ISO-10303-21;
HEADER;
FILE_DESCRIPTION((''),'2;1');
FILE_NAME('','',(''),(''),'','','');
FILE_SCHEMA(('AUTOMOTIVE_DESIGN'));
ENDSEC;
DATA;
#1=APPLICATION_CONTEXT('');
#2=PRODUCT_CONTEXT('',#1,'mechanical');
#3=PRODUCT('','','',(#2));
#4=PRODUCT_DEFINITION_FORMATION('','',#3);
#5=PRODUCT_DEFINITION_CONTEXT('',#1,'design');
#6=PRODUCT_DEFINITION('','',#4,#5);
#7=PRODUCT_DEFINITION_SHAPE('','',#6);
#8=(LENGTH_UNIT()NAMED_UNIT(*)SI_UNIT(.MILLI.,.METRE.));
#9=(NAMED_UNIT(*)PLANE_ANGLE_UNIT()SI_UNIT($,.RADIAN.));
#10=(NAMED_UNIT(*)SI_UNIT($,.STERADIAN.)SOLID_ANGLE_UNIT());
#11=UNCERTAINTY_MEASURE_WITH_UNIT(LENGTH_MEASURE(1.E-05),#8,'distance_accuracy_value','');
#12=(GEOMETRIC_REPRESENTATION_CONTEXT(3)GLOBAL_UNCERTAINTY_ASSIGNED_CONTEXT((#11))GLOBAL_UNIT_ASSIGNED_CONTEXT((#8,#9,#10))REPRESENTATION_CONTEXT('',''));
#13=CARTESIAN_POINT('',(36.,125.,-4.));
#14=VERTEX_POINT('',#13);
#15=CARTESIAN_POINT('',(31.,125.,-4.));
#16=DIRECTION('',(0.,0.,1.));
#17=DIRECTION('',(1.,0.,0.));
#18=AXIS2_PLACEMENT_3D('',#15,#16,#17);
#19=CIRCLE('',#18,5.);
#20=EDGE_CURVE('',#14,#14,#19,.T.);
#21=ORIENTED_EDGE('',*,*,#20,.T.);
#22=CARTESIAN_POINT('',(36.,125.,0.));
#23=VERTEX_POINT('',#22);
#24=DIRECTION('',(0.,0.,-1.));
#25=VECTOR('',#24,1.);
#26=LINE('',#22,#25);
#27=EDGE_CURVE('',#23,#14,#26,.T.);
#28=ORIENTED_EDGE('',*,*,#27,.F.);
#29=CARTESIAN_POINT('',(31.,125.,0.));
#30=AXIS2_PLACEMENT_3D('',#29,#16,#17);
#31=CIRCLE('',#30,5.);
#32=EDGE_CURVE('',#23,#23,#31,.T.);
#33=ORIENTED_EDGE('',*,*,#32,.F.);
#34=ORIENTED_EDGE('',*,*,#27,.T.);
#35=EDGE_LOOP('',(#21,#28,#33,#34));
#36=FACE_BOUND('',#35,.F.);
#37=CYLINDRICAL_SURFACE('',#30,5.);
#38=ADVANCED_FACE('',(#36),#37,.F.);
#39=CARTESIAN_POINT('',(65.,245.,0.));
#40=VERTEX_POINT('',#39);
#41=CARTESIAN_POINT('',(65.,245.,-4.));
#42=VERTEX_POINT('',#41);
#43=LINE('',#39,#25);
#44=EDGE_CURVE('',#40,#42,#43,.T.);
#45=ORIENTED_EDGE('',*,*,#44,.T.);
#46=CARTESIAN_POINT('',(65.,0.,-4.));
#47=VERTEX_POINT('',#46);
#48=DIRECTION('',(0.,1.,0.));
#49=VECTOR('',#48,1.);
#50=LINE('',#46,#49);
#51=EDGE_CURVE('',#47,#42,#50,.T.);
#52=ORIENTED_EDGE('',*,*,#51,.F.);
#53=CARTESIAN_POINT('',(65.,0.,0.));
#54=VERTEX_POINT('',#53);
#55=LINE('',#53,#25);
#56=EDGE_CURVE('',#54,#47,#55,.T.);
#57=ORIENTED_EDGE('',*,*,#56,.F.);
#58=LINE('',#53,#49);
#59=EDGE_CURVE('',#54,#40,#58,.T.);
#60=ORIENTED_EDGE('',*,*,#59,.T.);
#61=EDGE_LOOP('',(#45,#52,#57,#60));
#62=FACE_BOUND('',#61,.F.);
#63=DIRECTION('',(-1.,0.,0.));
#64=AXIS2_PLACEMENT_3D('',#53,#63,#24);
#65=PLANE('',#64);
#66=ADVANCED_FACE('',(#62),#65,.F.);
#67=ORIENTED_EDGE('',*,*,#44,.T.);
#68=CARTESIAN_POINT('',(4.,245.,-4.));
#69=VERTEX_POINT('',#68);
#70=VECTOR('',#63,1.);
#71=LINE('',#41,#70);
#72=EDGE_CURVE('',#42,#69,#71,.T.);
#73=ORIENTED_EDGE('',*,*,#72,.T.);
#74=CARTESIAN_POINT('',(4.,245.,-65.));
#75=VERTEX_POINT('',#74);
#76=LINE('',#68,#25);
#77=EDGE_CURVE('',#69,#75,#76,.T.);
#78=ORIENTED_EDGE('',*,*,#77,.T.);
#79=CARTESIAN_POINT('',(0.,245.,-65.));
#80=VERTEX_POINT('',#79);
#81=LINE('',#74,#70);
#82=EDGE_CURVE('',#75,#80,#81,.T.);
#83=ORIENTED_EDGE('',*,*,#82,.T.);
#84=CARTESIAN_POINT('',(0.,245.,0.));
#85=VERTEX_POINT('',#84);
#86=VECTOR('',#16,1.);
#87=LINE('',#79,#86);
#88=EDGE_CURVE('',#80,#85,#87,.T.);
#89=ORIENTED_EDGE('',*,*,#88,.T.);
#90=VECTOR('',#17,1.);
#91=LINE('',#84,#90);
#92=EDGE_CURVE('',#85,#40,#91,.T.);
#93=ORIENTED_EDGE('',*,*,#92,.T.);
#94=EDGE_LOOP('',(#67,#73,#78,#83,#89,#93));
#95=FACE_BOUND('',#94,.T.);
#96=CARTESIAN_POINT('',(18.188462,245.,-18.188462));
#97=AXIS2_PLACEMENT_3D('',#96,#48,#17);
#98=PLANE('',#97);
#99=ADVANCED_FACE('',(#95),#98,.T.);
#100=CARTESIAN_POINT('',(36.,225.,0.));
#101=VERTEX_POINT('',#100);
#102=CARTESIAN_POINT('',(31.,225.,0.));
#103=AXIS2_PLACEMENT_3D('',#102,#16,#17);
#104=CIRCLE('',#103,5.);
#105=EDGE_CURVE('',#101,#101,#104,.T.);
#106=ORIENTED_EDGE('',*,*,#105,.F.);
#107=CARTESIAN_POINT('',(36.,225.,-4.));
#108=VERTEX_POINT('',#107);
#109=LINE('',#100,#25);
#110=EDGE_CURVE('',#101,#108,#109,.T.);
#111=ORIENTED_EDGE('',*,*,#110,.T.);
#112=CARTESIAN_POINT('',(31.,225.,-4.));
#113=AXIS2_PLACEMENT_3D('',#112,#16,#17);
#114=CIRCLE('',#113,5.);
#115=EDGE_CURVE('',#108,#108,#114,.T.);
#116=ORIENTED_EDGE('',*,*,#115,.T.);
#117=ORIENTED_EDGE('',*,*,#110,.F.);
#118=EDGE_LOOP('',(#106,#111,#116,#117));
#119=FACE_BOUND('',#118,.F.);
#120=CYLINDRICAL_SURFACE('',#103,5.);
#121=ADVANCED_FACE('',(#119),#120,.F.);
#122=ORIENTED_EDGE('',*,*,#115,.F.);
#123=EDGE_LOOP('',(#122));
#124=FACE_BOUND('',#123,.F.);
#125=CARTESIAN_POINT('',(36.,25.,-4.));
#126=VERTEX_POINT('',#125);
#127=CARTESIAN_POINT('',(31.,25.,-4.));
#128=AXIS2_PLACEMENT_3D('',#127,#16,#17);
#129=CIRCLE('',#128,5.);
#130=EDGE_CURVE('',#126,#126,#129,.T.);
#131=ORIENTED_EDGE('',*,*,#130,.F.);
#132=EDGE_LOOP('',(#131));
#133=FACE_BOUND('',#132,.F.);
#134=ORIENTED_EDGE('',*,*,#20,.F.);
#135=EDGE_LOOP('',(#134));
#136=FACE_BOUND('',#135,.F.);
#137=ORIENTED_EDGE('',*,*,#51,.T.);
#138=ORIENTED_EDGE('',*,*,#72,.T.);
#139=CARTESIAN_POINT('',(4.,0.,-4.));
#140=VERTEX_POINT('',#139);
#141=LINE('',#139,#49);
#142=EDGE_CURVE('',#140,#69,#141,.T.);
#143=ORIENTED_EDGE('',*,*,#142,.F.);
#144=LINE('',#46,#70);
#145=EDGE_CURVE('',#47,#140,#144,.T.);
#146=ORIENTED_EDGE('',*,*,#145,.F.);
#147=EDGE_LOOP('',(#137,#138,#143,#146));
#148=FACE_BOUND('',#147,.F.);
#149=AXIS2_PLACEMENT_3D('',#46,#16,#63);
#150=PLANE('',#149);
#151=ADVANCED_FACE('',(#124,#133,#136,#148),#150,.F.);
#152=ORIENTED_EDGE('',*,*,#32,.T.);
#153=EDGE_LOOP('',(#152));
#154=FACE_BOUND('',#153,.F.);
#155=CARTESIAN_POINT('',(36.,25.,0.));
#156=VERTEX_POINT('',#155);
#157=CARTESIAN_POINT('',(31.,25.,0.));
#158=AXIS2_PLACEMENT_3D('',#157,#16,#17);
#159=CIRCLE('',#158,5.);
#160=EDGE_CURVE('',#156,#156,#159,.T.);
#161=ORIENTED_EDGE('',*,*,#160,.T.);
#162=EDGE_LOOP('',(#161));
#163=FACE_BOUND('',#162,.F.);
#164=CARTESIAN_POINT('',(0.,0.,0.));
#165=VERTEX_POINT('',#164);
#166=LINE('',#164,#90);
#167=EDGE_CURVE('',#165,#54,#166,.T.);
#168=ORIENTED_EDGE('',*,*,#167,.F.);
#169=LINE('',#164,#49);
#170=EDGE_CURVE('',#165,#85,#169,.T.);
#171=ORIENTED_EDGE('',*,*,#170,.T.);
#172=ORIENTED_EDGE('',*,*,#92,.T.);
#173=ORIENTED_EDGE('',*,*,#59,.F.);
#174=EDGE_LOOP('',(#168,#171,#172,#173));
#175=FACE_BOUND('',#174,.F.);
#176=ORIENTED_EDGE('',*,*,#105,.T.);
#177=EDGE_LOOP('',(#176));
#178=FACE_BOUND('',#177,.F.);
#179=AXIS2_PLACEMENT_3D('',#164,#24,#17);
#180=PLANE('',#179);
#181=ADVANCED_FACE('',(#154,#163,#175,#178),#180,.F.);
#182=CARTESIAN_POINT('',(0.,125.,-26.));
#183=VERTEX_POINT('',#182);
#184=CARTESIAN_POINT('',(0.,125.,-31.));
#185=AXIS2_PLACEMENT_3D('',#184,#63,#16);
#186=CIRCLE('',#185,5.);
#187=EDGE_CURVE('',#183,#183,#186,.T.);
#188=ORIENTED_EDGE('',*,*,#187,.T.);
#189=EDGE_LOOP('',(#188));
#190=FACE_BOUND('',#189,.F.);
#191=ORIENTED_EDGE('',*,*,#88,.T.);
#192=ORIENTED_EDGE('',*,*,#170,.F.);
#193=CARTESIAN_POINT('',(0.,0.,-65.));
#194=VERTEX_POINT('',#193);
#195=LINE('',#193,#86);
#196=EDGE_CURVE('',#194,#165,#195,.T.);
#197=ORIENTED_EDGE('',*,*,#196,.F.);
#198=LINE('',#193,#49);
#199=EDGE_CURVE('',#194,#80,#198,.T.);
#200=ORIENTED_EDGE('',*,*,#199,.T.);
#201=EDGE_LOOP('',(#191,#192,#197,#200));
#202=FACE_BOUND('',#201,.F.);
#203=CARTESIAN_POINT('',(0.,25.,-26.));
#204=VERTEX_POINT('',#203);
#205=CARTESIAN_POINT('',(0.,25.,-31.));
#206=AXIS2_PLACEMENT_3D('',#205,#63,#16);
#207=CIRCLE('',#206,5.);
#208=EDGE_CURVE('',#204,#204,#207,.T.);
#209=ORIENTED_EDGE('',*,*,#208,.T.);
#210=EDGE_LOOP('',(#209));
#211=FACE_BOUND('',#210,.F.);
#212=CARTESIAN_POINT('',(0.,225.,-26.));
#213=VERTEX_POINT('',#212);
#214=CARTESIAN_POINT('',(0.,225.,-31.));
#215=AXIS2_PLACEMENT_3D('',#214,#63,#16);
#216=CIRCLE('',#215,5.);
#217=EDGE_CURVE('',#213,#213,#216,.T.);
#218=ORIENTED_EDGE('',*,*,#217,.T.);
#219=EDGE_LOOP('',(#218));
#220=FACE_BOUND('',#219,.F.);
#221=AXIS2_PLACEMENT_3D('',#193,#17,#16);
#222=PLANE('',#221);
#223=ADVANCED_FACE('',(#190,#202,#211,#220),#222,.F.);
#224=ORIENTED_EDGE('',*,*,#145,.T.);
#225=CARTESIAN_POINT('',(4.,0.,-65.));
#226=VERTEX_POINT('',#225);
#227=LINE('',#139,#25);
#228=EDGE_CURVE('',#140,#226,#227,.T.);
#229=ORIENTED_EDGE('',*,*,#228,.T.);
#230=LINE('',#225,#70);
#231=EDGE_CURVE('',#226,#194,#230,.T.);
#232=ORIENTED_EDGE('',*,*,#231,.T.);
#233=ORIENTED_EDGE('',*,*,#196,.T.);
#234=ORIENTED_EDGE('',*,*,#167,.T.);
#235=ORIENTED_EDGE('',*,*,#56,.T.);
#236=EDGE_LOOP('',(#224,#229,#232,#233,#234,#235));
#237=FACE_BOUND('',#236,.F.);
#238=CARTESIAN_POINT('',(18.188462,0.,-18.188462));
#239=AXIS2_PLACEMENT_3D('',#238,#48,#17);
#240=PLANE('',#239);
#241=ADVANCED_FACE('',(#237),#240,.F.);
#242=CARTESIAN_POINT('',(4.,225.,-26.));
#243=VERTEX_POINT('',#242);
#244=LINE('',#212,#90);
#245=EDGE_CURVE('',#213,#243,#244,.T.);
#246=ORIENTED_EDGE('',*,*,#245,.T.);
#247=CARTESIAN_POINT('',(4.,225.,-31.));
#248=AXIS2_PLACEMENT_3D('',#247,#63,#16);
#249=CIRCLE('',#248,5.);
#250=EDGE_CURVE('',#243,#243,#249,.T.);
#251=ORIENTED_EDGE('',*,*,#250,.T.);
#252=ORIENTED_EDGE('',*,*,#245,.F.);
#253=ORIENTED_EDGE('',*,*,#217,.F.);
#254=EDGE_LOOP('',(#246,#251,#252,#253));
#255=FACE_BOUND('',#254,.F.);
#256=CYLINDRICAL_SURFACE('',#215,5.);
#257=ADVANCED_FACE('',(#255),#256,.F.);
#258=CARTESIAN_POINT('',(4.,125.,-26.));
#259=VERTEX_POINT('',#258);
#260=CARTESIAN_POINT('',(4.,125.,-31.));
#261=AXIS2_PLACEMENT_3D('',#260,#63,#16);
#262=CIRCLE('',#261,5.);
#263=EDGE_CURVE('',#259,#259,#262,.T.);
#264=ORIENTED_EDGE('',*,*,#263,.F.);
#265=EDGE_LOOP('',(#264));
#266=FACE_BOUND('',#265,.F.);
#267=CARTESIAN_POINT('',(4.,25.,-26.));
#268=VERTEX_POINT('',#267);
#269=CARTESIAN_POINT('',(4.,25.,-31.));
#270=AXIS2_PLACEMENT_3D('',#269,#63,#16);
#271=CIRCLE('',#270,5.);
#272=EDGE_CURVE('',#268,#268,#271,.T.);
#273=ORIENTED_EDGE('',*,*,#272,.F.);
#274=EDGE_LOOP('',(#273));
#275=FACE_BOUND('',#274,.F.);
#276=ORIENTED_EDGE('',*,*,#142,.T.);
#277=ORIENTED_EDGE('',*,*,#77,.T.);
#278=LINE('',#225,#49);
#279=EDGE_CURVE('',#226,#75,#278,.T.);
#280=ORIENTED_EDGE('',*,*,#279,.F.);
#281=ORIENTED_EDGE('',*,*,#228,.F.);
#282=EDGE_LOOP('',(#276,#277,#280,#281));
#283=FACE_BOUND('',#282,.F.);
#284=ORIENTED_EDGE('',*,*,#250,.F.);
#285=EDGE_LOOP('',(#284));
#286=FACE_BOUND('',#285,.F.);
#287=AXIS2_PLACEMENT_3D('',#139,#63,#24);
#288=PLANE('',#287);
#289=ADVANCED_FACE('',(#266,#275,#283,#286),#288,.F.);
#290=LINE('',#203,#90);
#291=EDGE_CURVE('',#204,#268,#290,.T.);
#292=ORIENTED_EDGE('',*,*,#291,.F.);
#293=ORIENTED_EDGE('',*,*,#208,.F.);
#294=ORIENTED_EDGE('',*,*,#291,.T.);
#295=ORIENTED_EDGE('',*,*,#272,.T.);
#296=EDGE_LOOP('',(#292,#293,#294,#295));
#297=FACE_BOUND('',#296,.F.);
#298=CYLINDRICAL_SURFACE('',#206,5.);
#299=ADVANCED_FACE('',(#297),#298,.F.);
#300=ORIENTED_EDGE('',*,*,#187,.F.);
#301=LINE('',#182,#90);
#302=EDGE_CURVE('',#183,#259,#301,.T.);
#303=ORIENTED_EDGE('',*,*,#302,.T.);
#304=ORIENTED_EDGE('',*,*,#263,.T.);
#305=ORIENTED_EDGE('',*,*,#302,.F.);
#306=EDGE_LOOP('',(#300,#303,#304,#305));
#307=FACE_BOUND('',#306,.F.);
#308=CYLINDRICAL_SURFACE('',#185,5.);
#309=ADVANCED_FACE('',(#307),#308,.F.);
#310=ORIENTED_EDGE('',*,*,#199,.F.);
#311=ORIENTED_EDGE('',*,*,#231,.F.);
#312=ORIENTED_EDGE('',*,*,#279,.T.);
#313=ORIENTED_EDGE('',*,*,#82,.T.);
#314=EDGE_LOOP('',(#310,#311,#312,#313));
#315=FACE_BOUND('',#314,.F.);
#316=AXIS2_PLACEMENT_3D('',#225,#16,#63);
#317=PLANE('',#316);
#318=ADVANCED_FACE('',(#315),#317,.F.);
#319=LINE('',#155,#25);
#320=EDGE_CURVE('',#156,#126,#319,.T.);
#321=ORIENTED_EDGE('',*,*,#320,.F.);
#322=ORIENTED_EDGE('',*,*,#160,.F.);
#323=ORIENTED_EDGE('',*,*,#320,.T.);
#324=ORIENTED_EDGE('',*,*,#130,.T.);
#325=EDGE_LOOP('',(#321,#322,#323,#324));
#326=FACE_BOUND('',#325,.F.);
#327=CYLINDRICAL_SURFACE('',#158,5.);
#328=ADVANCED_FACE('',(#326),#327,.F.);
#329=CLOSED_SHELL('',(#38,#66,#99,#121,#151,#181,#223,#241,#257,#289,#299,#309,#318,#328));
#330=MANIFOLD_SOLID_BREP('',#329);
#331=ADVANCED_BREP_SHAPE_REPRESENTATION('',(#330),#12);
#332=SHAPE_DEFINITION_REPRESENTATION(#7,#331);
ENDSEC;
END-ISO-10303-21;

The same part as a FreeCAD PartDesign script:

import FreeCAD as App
import Part
import Sketcher

V = App.Vector


def add_polygon(sketch, points):
    """Adds a closed chain of lines whose ends are joined by coincident constraints."""
    first, n = sketch.GeometryCount, len(points)
    for a, b in zip(points, points[1:] + points[:1]):
        sketch.addGeometry(Part.LineSegment(App.Vector(*a, 0), App.Vector(*b, 0)), False)
    for i in range(n):
        sketch.addConstraint(Sketcher.Constraint("Coincident", first + i, 2, first + (i + 1) % n, 1))

doc = App.newDocument("Part")
body = doc.addObject("PartDesign::Body", "Body")

# Sketch on XZ plane
sketch1 = body.newObject("Sketcher::SketchObject", "Sketch")
sketch1.AttachmentSupport = (doc.getObject("XZ_Plane"), [""])
sketch1.MapMode = "FlatFace"
add_polygon(sketch1, [(0, -65), (0, 0), (65, 0), (65, -4), (4, -4), (4, -65)])  # lines 0-5
sketch1.addConstraint([
    Sketcher.Constraint("Vertical", 0),
    Sketcher.Constraint("Horizontal", 1),
    Sketcher.Constraint("Vertical", 2),
    Sketcher.Constraint("Horizontal", 3),
    Sketcher.Constraint("Vertical", 4),
    Sketcher.Constraint("Horizontal", 5),
    Sketcher.Constraint("Coincident", 0, 2, -1, 1),
    Sketcher.Constraint("Equal", 1, 0),
    Sketcher.Constraint("Equal", 5, 2),
    Sketcher.Constraint("DistanceX", 1, 1, 1, 2, 65.0),
    Sketcher.Constraint("DistanceX", 3, 2, 3, 1, 61.0),
])
pad1 = body.newObject("PartDesign::Pad", "Pad")
pad1.Profile = sketch1
pad1.Length = 245
pad1.Reversed = True

# Sketch on XY plane
sketch2 = body.newObject("Sketcher::SketchObject", "Sketch001")
sketch2.AttachmentSupport = (doc.getObject("XY_Plane"), [""])
sketch2.MapMode = "FlatFace"
sketch2.addGeometry([
    Part.Circle(V(31, 225, 0), V(0, 0, 1), 5),
    Part.Circle(V(31, 125, 0), V(0, 0, 1), 5),
    Part.Circle(V(31, 25, 0), V(0, 0, 1), 5),
], False)
sketch2.addConstraint([
    Sketcher.Constraint("Equal", 0, 1),
    Sketcher.Constraint("Equal", 1, 2),
    Sketcher.Constraint("Vertical", 0, 3, 1, 3),
    Sketcher.Constraint("Vertical", 1, 3, 2, 3),
    Sketcher.Constraint("Diameter", 0, 10.0),
    Sketcher.Constraint("DistanceX", -1, 1, 0, 3, 31.0),
    Sketcher.Constraint("DistanceY", -1, 1, 0, 3, 225.0),
    Sketcher.Constraint("DistanceY", -1, 1, 1, 3, 125.0),
    Sketcher.Constraint("DistanceY", -1, 1, 2, 3, 25.0),
])
pocket1 = body.newObject("PartDesign::Pocket", "Pocket")
pocket1.Profile = sketch2
pocket1.Length = 10

# Sketch on YZ plane
sketch3 = body.newObject("Sketcher::SketchObject", "Sketch002")
sketch3.AttachmentSupport = (doc.getObject("YZ_Plane"), [""])
sketch3.MapMode = "FlatFace"
sketch3.addGeometry([
    Part.Circle(V(225, -31, 0), V(0, 0, 1), 5),
    Part.Circle(V(125, -31, 0), V(0, 0, 1), 5),
    Part.Circle(V(25, -31, 0), V(0, 0, 1), 5),
], False)
sketch3.addConstraint([
    Sketcher.Constraint("Equal", 0, 1),
    Sketcher.Constraint("Equal", 1, 2),
    Sketcher.Constraint("Horizontal", 0, 3, 1, 3),
    Sketcher.Constraint("Horizontal", 1, 3, 2, 3),
    Sketcher.Constraint("Diameter", 0, 10.0),
    Sketcher.Constraint("DistanceX", -1, 1, 0, 3, 225.0),
    Sketcher.Constraint("DistanceY", 0, 3, -1, 1, 31.0),
    Sketcher.Constraint("DistanceX", -1, 1, 1, 3, 125.0),
    Sketcher.Constraint("DistanceX", -1, 1, 2, 3, 25.0),
])
pocket2 = body.newObject("PartDesign::Pocket", "Pocket001")
pocket2.Profile = sketch3
pocket2.Length = 10
pocket2.Reversed = True

doc.recompute()
